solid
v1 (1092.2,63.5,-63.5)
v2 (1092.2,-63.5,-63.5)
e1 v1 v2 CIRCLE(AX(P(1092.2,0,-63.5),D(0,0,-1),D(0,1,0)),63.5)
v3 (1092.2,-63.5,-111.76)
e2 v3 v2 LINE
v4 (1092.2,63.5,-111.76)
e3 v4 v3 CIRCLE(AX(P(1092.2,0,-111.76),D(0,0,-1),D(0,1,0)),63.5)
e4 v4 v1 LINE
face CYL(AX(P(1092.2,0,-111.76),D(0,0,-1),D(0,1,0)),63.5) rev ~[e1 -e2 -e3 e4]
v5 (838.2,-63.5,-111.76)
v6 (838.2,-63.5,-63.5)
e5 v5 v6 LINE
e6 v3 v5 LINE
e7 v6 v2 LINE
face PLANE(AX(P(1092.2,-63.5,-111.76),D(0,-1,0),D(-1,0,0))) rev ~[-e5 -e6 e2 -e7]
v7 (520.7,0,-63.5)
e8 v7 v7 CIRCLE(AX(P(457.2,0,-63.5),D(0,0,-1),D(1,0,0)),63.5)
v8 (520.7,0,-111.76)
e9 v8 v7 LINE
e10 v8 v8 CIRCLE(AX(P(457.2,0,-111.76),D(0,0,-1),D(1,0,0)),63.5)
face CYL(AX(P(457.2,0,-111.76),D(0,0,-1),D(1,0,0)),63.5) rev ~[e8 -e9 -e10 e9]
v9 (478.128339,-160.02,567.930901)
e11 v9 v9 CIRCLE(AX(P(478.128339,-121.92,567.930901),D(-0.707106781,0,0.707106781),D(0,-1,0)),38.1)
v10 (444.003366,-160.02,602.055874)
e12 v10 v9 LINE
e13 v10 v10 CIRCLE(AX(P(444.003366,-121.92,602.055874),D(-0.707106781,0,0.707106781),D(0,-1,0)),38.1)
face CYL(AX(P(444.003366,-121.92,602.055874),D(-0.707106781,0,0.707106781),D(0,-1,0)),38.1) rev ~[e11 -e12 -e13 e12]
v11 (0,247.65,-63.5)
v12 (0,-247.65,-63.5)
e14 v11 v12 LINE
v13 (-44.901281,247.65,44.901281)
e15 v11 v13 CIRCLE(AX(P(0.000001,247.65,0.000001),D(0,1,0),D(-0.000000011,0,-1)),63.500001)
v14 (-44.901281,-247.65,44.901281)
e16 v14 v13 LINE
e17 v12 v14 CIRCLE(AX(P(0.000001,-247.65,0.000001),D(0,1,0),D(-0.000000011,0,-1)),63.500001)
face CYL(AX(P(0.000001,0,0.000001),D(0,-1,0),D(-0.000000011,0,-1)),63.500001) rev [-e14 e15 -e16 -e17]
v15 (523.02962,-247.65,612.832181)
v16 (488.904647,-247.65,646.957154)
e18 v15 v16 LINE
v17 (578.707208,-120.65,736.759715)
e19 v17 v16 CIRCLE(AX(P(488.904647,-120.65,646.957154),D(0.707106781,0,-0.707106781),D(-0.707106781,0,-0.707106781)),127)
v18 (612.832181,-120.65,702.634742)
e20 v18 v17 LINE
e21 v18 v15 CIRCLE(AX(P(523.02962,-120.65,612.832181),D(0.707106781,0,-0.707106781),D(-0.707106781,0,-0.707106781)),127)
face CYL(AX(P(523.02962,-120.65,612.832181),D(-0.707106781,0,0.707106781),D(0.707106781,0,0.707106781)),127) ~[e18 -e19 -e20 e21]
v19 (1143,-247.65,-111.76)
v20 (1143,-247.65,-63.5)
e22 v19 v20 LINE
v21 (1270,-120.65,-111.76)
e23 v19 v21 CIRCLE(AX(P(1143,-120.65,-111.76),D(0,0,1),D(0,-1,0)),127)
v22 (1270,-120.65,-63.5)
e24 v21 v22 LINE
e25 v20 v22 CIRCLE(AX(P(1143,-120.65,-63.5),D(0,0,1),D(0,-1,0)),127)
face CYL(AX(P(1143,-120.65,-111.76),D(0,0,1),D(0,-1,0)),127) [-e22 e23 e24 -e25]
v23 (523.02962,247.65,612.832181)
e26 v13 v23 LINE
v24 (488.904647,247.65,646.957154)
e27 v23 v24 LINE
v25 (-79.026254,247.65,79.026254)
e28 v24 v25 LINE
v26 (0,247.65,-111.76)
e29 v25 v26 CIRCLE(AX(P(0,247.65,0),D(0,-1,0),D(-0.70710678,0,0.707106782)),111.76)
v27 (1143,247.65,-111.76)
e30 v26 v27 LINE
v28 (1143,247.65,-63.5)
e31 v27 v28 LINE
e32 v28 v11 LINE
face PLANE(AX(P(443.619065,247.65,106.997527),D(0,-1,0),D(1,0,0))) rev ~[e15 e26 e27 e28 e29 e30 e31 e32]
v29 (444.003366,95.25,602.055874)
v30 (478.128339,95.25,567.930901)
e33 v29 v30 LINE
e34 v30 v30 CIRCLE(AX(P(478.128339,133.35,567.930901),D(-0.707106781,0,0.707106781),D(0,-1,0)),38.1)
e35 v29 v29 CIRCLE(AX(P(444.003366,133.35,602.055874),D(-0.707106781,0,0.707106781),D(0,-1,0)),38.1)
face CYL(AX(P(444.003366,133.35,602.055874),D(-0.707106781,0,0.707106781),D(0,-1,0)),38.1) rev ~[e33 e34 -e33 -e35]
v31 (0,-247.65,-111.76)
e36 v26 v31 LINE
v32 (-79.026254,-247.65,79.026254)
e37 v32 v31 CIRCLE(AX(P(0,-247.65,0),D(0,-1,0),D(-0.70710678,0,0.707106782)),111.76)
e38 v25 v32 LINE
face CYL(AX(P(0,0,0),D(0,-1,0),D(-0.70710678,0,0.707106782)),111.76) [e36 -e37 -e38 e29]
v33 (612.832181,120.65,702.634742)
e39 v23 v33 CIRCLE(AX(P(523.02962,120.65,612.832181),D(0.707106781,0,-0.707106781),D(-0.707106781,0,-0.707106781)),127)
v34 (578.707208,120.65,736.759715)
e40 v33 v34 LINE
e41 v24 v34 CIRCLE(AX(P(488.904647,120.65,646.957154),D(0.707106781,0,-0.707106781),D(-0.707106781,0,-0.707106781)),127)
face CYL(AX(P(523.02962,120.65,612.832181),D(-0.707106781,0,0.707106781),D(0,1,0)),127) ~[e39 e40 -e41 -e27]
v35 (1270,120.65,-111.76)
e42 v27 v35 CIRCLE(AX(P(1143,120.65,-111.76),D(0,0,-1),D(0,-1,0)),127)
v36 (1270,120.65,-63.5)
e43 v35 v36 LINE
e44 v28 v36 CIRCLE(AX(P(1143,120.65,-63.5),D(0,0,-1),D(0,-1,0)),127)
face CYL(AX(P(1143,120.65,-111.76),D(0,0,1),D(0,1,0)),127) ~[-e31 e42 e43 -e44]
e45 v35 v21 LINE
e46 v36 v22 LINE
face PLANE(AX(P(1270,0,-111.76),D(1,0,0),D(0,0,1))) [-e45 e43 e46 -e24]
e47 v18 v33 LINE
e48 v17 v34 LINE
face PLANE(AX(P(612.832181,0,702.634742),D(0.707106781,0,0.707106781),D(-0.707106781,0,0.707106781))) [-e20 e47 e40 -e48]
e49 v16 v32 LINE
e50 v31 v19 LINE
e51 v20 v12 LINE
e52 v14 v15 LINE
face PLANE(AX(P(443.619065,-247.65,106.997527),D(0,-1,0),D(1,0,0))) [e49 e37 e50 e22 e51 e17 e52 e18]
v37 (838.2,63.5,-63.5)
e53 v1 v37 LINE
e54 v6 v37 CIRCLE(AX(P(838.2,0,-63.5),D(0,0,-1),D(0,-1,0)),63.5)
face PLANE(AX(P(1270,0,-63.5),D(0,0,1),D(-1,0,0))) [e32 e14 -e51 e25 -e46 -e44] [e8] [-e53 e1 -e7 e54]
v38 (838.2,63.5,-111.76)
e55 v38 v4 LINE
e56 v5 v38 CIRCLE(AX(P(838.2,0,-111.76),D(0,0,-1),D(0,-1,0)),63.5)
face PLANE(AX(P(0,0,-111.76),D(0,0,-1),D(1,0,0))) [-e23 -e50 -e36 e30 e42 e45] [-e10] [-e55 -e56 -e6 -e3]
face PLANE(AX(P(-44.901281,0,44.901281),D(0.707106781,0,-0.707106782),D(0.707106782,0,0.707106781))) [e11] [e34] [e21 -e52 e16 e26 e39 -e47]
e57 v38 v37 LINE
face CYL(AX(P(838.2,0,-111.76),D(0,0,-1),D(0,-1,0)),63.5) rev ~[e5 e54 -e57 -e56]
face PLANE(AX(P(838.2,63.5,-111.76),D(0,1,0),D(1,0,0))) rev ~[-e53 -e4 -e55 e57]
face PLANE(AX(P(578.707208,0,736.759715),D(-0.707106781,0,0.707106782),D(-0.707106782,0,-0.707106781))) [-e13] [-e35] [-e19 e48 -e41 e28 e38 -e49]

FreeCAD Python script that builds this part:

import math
import FreeCAD as App
import Part
import Sketcher
from FreeCAD import Vector
Q = App.Units.Quantity


def edges_at(feature, points):
    """Names of the edges that pass closest to the given points."""
    edges = feature.Shape.Edges
    near = lambda p: min(range(len(edges)), key=lambda i: edges[i].distToShape(Part.Vertex(*p))[0])
    return sorted({f"Edge{near(p) + 1}" for p in points})

doc = App.newDocument("Part")
body = doc.addObject("PartDesign::Body", "Body")

sketch1 = body.newObject("Sketcher::SketchObject", "Sketch")
sketch1.AttachmentSupport = (doc.getObject("XZ_Plane"), [""])
sketch1.MapMode = "FlatFace"
sketch1.addGeometry(Part.LineSegment(Vector(579, 737, 0), Vector(-79, 79, 0)), False)
sketch1.addGeometry(Part.ArcOfCircle(Part.Circle(Vector(0, 0, 0), Vector(0, 0, 1), 112), math.radians(135), math.radians(270)), False)
sketch1.addGeometry(Part.LineSegment(Vector(0, -112, 0), Vector(1270, -112, 0)), False)
sketch1.addGeometry(Part.LineSegment(Vector(1270, -112, 0), Vector(1270, -64, 0)), False)
sketch1.addGeometry(Part.LineSegment(Vector(1270, -64, 0), Vector(0, -64, 0)), False)
sketch1.addGeometry(Part.ArcOfCircle(Part.Circle(Vector(0, 0, 0), Vector(0, 0, 1), 64), math.radians(135), math.radians(270)), False)
sketch1.addGeometry(Part.LineSegment(Vector(-45, 45, 0), Vector(613, 703, 0)), False)
sketch1.addGeometry(Part.LineSegment(Vector(613, 703, 0), Vector(579, 737, 0)), False)
sketch1.addConstraint(Sketcher.Constraint("Tangent", 0, 2, 1, 1))
sketch1.addConstraint(Sketcher.Constraint("Tangent", 1, 2, 2, 1))
sketch1.addConstraint(Sketcher.Constraint("Coincident", 2, 2, 3, 1))
sketch1.addConstraint(Sketcher.Constraint("Coincident", 3, 2, 4, 1))
sketch1.addConstraint(Sketcher.Constraint("Tangent", 4, 2, 5, 2))
sketch1.addConstraint(Sketcher.Constraint("Tangent", 5, 1, 6, 1))
sketch1.addConstraint(Sketcher.Constraint("Coincident", 6, 2, 7, 1))
sketch1.addConstraint(Sketcher.Constraint("Coincident", 7, 2, 0, 1))
sketch1.addConstraint(Sketcher.Constraint("Horizontal", 2))
sketch1.addConstraint(Sketcher.Constraint("Vertical", 3))
sketch1.addConstraint(Sketcher.Constraint("Horizontal", 4))
sketch1.addConstraint(Sketcher.Constraint("Coincident", 1, 3, -1, 1))
sketch1.addConstraint(Sketcher.Constraint("Coincident", 5, 3, -1, 1))
sketch1.addConstraint(Sketcher.Constraint("Parallel", 0, 6))
sketch1.addConstraint(Sketcher.Constraint("Perpendicular", 6, 7))
sketch1.addConstraint(Sketcher.Constraint("Radius", 1, Q("4.4 in")))
sketch1.addConstraint(Sketcher.Constraint("Radius", 5, Q("2.5 in")))
sketch1.addConstraint(Sketcher.Constraint("DistanceX", 2, 1, 2, 2, Q("50 in")))
sketch1.addConstraint(Sketcher.Constraint("Angle", 0, Q("-135 deg")))
sketch1.addConstraint(Sketcher.Constraint("Distance", 0, Q("930.175582 mm")))
pad1 = body.newObject("PartDesign::Pad", "Pad")
pad1.Profile = sketch1
pad1.Length = Q("19.5 in")
pad1.Midplane = True

sketch2 = body.newObject("Sketcher::SketchObject", "Sketch001")
sketch2.Placement = App.Placement(Vector(-79.026254, 0, 79.026254), App.Rotation(Vector(0, -1, 0), Vector(0.707106781, 0, 0.707106781), Vector(-0.707106781, 0, 0.707106781), "ZXY"))
sketch2.addGeometry(Part.Circle(Vector(-133, 740, 0), Vector(0, 0, 1), 38), False)
sketch2.addGeometry(Part.Circle(Vector(122, 740, 0), Vector(0, 0, 1), 38), False)
sketch2.addConstraint(Sketcher.Constraint("Equal", 0, 1))
sketch2.addConstraint(Sketcher.Constraint("Horizontal", 0, 3, 1, 3))
sketch2.addConstraint(Sketcher.Constraint("Diameter", 0, Q("3 in")))
sketch2.addConstraint(Sketcher.Constraint("DistanceX", -1, 1, 1, 3, Q("4.8 in")))
sketch2.addConstraint(Sketcher.Constraint("DistanceX", 0, 3, -1, 1, Q("5.25 in")))
sketch2.addConstraint(Sketcher.Constraint("DistanceY", -1, 1, 0, 3, Q("739.675582 mm")))
pocket1 = body.newObject("PartDesign::Pocket", "Pocket")
pocket1.Profile = sketch2
pocket1.Length = Q("2 in")

sketch3 = body.newObject("Sketcher::SketchObject", "Sketch002")
sketch3.AttachmentSupport = (doc.getObject("XY_Plane"), [""])
sketch3.MapMode = "FlatFace"
sketch3.AttachmentOffset = App.Placement(Vector(0, 0, -4.4 * 25.4), App.Rotation())
sketch3.addGeometry(Part.LineSegment(Vector(838, 64, 0), Vector(1092, 64, 0)), False)
sketch3.addGeometry(Part.ArcOfCircle(Part.Circle(Vector(1092, 0, 0), Vector(0, 0, 1), 64), math.radians(-90), math.radians(90)), False)
sketch3.addGeometry(Part.LineSegment(Vector(1092, -64, 0), Vector(838, -64, 0)), False)
sketch3.addGeometry(Part.ArcOfCircle(Part.Circle(Vector(838, 0, 0), Vector(0, 0, 1), 64), math.radians(90), math.radians(270)), False)
sketch3.addGeometry(Part.Circle(Vector(457, 0, 0), Vector(0, 0, 1), 64), False)
sketch3.addConstraint(Sketcher.Constraint("Tangent", 0, 2, 1, 2))
sketch3.addConstraint(Sketcher.Constraint("Tangent", 1, 1, 2, 1))
sketch3.addConstraint(Sketcher.Constraint("Tangent", 2, 2, 3, 2))
sketch3.addConstraint(Sketcher.Constraint("Tangent", 3, 1, 0, 1))
sketch3.addConstraint(Sketcher.Constraint("Horizontal", 0))
sketch3.addConstraint(Sketcher.Constraint("Horizontal", 2))
sketch3.addConstraint(Sketcher.Constraint("Equal", 3, 4))
sketch3.addConstraint(Sketcher.Constraint("PointOnObject", 1, 3, -1))
sketch3.addConstraint(Sketcher.Constraint("PointOnObject", 4, 3, -1))
sketch3.addConstraint(Sketcher.Constraint("Diameter", 4, Q("5 in")))
sketch3.addConstraint(Sketcher.Constraint("DistanceX", 0, 1, 0, 2, Q("10 in")))
sketch3.addConstraint(Sketcher.Constraint("DistanceX", -1, 1, 1, 3, Q("43 in")))
sketch3.addConstraint(Sketcher.Constraint("DistanceX", -1, 1, 4, 3, Q("18 in")))
pocket2 = body.newObject("PartDesign::Pocket", "Pocket001")
pocket2.Profile = sketch3
pocket2.Length = Q("2 in")
pocket2.Reversed = True
doc.recompute()

fillet = body.newObject("PartDesign::Fillet", "Fillet")
fillet.Base = (pocket2, edges_at(pocket2, [
    (1270, -247.65, -87.63),
    (1270, 247.65, -87.63),
    (595.77, -247.65, 719.697),
    (595.77, 247.65, 719.697),
]))
fillet.Radius = Q("5 in")

doc.recompute()
